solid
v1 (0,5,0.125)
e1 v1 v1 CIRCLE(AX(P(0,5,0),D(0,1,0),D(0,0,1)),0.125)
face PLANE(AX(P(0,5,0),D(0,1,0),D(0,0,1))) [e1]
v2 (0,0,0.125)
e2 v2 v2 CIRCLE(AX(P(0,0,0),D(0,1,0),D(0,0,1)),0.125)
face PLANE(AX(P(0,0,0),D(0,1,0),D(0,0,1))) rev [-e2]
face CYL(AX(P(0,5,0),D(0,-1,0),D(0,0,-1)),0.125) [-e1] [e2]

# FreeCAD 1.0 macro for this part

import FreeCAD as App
import Part
import Sketcher
from FreeCAD import Vector

doc = App.newDocument("Part")
params = doc.addObject("Spreadsheet::Sheet", "Params")
for row, (alias, value) in enumerate([
    ("sketch1_diameter", "0.25 mm"),
    ("pad1_length", "5 mm"),
], start=1):
    params.set(f"A{row}", alias)
    params.set(f"B{row}", "=" + value)
    params.setAlias(f"B{row}", alias)

body = doc.addObject("PartDesign::Body", "Body")

# Sketch on XZ plane
sketch1 = body.newObject("Sketcher::SketchObject", "Sketch")
sketch1.AttachmentSupport = (doc.getObject("XZ_Plane"), [""])
sketch1.MapMode = "FlatFace"
sketch1.addGeometry(Part.Circle(Vector(0, 0, 0), Vector(0, 0, 1), 0.12), False)
sketch1.addConstraint([
    Sketcher.Constraint("Coincident", 0, 3, -1, 1),
    Sketcher.Constraint("Diameter", 0, 0.25),
])
sketch1.setExpression("Constraints[1]", "Params.sketch1_diameter")
pad1 = body.newObject("PartDesign::Pad", "Pad")
pad1.Profile = sketch1
pad1.setExpression("Length", "Params.pad1_length")
pad1.Reversed = True

doc.recompute()
